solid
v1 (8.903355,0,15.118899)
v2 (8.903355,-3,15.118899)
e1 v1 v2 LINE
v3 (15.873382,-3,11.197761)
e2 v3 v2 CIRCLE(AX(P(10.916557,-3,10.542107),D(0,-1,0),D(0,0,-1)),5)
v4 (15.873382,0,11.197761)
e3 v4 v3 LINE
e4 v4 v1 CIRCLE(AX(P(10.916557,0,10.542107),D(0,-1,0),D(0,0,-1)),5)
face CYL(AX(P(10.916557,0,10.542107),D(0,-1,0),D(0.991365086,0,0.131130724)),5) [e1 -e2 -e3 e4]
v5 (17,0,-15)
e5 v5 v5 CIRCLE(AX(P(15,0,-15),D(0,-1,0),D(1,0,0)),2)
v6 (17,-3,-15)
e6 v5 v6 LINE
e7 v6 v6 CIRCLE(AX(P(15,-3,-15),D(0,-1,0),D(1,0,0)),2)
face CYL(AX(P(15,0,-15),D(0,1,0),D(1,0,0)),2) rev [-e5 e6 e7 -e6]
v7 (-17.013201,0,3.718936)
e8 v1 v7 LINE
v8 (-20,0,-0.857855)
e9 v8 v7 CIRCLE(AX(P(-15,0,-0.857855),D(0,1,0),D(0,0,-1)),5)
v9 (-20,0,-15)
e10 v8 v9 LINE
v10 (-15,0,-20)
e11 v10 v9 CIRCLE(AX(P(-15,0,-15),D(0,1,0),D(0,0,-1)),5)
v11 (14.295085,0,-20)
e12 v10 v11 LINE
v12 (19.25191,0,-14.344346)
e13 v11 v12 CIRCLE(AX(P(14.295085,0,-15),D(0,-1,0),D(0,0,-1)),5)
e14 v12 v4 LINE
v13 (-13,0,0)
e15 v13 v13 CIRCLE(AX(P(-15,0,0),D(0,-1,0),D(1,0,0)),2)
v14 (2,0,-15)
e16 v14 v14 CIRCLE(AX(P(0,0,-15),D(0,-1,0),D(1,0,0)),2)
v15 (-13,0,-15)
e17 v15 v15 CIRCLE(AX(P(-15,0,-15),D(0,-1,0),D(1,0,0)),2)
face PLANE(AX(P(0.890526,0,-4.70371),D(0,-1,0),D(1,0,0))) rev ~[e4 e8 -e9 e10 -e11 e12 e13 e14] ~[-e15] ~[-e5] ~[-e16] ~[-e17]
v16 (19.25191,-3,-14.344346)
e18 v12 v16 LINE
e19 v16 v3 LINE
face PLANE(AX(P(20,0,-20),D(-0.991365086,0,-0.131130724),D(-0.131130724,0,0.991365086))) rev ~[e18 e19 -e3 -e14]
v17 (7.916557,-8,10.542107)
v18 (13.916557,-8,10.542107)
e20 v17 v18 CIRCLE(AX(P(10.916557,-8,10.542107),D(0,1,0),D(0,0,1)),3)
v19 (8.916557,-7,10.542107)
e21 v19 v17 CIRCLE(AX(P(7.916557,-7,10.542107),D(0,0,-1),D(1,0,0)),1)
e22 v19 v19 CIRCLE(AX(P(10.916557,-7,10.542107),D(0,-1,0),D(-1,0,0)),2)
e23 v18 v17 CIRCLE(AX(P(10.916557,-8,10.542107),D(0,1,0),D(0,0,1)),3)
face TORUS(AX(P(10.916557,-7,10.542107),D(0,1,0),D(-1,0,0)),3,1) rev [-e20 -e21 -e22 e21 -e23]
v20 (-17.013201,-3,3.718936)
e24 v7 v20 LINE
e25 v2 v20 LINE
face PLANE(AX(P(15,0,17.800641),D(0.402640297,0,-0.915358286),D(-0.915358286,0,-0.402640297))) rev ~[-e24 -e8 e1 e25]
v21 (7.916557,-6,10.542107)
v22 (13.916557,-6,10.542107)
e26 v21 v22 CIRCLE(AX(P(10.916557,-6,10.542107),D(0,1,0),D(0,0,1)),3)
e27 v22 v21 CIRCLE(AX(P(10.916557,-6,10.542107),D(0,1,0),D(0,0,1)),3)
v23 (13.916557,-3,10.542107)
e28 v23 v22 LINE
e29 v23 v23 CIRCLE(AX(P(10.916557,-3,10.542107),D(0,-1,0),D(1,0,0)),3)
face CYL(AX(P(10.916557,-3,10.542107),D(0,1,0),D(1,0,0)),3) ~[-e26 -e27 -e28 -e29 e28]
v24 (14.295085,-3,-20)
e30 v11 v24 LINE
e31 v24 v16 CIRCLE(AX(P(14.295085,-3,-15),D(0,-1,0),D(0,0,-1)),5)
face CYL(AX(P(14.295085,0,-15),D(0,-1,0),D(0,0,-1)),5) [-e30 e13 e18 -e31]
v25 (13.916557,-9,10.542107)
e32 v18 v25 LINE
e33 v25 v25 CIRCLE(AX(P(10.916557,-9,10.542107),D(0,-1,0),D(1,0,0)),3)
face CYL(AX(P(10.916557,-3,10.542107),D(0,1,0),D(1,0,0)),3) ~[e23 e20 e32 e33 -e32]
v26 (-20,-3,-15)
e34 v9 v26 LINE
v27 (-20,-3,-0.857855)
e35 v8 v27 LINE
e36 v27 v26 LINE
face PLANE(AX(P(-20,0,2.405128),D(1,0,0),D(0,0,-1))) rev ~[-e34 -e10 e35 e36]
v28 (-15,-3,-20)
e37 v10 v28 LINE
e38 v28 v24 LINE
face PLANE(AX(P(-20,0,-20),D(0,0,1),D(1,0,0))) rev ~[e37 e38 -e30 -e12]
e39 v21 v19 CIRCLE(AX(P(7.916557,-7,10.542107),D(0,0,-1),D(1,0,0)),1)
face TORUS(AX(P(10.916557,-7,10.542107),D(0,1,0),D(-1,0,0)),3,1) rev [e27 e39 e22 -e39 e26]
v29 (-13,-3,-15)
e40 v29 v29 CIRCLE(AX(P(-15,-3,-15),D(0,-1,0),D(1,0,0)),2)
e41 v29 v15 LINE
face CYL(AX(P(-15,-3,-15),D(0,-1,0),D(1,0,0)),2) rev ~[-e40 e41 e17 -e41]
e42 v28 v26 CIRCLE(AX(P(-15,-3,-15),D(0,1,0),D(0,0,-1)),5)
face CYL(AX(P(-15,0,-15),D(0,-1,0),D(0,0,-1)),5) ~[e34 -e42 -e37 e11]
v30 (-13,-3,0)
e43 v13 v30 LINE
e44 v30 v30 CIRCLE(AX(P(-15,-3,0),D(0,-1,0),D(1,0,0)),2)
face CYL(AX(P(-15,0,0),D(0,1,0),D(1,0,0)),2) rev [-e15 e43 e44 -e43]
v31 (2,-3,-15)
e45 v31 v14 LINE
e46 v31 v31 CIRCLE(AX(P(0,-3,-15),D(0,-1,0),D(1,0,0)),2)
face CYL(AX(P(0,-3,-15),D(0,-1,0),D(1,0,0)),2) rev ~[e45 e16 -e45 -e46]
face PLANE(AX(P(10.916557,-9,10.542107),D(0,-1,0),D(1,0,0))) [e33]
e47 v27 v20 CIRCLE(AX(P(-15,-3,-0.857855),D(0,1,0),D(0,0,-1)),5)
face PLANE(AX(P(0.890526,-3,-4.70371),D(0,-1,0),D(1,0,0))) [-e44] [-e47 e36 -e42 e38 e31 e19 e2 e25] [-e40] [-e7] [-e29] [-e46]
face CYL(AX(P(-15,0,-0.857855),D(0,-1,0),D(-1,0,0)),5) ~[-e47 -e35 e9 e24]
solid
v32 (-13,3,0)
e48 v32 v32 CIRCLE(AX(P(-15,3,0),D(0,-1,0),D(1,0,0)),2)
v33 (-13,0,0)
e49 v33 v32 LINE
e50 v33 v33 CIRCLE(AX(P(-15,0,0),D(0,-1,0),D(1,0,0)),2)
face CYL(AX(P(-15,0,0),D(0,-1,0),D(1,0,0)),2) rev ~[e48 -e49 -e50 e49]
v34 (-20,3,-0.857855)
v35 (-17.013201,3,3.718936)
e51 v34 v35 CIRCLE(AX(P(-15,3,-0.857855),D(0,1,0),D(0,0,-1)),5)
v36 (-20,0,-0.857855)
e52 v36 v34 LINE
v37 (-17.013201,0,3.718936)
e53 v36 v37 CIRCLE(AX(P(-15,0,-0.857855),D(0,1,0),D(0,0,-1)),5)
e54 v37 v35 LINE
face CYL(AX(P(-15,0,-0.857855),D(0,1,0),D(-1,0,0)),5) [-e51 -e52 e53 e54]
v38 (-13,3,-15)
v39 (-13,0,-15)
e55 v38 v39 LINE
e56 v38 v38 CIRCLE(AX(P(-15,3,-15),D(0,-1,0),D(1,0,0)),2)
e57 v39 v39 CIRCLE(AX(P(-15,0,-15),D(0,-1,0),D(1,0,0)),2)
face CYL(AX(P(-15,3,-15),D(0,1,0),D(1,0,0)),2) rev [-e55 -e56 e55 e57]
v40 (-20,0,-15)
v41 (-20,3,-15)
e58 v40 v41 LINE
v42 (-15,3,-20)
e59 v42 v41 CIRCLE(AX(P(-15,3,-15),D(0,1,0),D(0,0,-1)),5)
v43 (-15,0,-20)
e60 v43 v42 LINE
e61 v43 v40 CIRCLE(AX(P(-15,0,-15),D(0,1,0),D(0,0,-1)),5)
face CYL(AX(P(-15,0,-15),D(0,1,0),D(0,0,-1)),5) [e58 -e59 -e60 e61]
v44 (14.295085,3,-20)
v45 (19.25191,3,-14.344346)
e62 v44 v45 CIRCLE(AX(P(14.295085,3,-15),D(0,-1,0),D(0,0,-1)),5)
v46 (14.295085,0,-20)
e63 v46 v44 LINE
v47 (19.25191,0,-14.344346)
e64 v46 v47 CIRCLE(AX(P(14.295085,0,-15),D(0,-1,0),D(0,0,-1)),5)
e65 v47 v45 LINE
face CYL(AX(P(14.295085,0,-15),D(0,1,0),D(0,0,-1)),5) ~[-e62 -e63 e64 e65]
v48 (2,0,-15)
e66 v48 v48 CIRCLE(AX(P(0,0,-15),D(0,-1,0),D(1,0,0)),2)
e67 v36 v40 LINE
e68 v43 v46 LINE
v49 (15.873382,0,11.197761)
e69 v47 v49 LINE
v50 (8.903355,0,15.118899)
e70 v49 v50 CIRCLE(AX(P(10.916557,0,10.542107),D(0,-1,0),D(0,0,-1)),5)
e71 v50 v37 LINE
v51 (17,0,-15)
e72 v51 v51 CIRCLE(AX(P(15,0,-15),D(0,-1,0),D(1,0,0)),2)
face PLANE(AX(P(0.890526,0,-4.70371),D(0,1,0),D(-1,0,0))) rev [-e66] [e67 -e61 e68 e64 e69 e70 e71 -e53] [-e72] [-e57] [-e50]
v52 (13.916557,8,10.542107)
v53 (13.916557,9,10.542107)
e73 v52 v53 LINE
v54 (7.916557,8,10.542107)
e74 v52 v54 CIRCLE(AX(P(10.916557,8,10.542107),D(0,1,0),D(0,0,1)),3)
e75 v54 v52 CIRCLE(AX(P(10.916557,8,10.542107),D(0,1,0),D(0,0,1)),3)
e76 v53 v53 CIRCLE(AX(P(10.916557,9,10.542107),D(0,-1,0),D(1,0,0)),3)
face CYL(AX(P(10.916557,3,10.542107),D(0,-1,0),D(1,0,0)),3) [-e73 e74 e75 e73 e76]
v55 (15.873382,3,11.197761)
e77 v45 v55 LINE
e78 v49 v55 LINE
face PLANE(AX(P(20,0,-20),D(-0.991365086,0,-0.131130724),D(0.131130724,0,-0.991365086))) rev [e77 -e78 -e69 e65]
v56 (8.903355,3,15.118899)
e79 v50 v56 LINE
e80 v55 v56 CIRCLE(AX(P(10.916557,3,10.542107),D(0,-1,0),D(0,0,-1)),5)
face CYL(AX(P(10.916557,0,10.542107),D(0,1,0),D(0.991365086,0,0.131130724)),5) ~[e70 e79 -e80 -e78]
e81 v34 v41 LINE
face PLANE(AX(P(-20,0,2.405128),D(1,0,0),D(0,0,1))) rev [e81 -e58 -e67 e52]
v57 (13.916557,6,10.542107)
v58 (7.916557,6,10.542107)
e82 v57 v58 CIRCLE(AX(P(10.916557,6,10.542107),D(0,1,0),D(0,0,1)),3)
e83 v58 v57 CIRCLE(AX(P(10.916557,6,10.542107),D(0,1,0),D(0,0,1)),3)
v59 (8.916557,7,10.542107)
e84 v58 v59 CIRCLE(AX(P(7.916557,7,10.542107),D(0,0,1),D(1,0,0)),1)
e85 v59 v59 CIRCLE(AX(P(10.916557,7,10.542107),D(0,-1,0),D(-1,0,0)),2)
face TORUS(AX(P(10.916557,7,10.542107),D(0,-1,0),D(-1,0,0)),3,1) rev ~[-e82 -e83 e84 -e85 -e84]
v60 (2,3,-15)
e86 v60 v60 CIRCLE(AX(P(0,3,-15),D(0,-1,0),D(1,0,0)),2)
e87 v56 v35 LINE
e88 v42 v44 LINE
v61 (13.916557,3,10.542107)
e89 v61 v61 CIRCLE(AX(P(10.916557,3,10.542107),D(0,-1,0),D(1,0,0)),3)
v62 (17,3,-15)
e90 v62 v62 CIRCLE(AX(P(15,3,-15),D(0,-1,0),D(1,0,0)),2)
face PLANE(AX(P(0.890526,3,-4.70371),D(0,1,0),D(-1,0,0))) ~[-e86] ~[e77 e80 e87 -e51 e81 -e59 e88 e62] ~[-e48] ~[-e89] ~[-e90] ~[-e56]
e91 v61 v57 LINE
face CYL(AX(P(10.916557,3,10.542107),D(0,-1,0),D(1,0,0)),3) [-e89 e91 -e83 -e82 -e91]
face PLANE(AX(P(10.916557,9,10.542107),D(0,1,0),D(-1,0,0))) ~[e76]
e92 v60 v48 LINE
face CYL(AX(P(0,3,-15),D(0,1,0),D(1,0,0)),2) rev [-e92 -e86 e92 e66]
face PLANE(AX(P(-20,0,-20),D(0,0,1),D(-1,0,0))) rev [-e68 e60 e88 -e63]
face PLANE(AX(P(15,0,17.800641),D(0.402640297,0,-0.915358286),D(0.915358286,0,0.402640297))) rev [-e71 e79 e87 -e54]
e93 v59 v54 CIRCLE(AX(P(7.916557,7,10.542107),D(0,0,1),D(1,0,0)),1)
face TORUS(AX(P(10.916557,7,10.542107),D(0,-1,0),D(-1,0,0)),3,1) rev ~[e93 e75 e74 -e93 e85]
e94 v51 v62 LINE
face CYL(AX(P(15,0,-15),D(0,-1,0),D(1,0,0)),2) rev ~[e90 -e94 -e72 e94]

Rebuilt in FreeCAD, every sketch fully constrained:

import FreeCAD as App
import Part
import Sketcher

V = App.Vector


def edges_at(feature, points):
    """Names of the edges that pass closest to the given points."""
    edges = feature.Shape.Edges
    near = lambda p: min(range(len(edges)), key=lambda i: edges[i].distToShape(Part.Vertex(*p))[0])
    return sorted({f"Edge{near(p) + 1}" for p in points})


def add_polygon(sketch, points):
    """Adds a closed chain of lines whose ends are joined by coincident constraints."""
    first, n = sketch.GeometryCount, len(points)
    for a, b in zip(points, points[1:] + points[:1]):
        sketch.addGeometry(Part.LineSegment(App.Vector(*a, 0), App.Vector(*b, 0)), False)
    for i in range(n):
        sketch.addConstraint(Sketcher.Constraint("Coincident", first + i, 2, first + (i + 1) % n, 1))

doc = App.newDocument("Part")
params = doc.addObject("Spreadsheet::Sheet", "Params")
for row, (alias, value) in enumerate([
    ("sketch1_diameter", "4 mm"),
    ("sketch1_width", "40 mm"),
    ("pad1_length", "3 mm"),
    ("fillet_radius", "5 mm"),
    ("sketch2_diameter", "6 mm"),
    ("pad2_length", "6 mm"),
    ("sketch3_diameter", "2 mm"),
    ("sketch3_height", "10 mm"),
    ("groove_angle", "360 deg"),
    ("fillet2_radius", "5 mm"),
    ("sketch4_diameter", "4 mm"),
    ("pocket1_length", "25 mm"),
], start=1):
    params.set(f"A{row}", alias)
    params.set(f"B{row}", "=" + value)
    params.setAlias(f"B{row}", alias)

body = doc.addObject("PartDesign::Body", "Body")

# Sketch on XZ plane
sketch1 = body.newObject("Sketcher::SketchObject", "Sketch")
sketch1.AttachmentSupport = (doc.getObject("XZ_Plane"), [""])
sketch1.MapMode = "FlatFace"
add_polygon(sketch1, [(-20, -20), (20, -20), (15, 17.800641), (-20, 2.405128)])  # lines 0-3
sketch1.addGeometry(Part.Circle(V(15, -15, 0), V(0, 0, 1), 2), False)  # 4
sketch1.addGeometry(Part.Circle(V(-15, 0, 0), V(0, 0, 1), 2), False)  # 5
sketch1.addConstraint(Sketcher.Constraint("Horizontal", 0))
sketch1.addConstraint(Sketcher.Constraint("Vertical", 3))
sketch1.addConstraint(Sketcher.Constraint("Equal", 4, 5))
sketch1.addConstraint(Sketcher.Constraint("PointOnObject", 5, 3, -1))
sketch1.addConstraint(Sketcher.Constraint("Vertical", 4, 3, 1, 2))
sketch1.addConstraint(Sketcher.Constraint("Diameter", 4, 4.0))
sketch1.addConstraint(Sketcher.Constraint("DistanceX", 0, 1, 0, 2, 40.0))
sketch1.addConstraint(Sketcher.Constraint("DistanceX", -1, 1, 4, 3, 15.0))
sketch1.addConstraint(Sketcher.Constraint("DistanceY", 4, 3, -1, 1, 15.0))
sketch1.addConstraint(Sketcher.Constraint("DistanceX", 5, 3, -1, 1, 15.0))
sketch1.addConstraint(Sketcher.Constraint("DistanceX", -1, 1, 0, 2, 20.0))
sketch1.addConstraint(Sketcher.Constraint("DistanceY", 0, 2, -1, 1, 20.0))
sketch1.addConstraint(Sketcher.Constraint("DistanceY", 3, 2, 3, 1, 22.405128))
sketch1.addConstraint(Sketcher.Constraint("Distance", 1, 38.129889))
sketch1.setExpression("Constraints[9]", "Params.sketch1_diameter")
sketch1.setExpression("Constraints[10]", "Params.sketch1_width")
pad1 = body.newObject("PartDesign::Pad", "Pad")
pad1.Profile = sketch1
pad1.setExpression("Length", "Params.pad1_length")
doc.recompute()

fillet = body.newObject("PartDesign::Fillet", "Fillet")
fillet.Base = (pad1, edges_at(pad1, [(15, -1.5, 17.801), (-20, -1.5, 2.405), (20, -1.5, -20)]))
fillet.setExpression("Radius", "Params.fillet_radius")

# Sketch on XZ plane
sketch2 = body.newObject("Sketcher::SketchObject", "Sketch001")
sketch2.AttachmentSupport = (doc.getObject("XZ_Plane"), [""])
sketch2.MapMode = "FlatFace"
sketch2.AttachmentOffset = App.Placement(V(0, 0, 3), App.Rotation())
sketch2.addGeometry(Part.Circle(V(10.916557, 10.542107, 0), V(0, 0, 1), 3), False)
sketch2.addConstraint(Sketcher.Constraint("Diameter", 0, 6.0))
sketch2.addConstraint(Sketcher.Constraint("DistanceX", -1, 1, 0, 3, 10.916557))
sketch2.addConstraint(Sketcher.Constraint("DistanceY", -1, 1, 0, 3, 10.542107))
sketch2.setExpression("Constraints[0]", "Params.sketch2_diameter")
pad2 = body.newObject("PartDesign::Pad", "Pad001")
pad2.Profile = sketch2
pad2.setExpression("Length", "Params.pad2_length")

# Sketch on XY plane
sketch3 = body.newObject("Sketcher::SketchObject", "Sketch002")
sketch3.AttachmentSupport = (doc.getObject("XY_Plane"), [""])
sketch3.MapMode = "FlatFace"
sketch3.AttachmentOffset = App.Placement(V(0, 0, 10.542107), App.Rotation())
sketch3.addGeometry(Part.Circle(V(7.916557, -7, 0), V(0, 0, 1), 1), False)
sketch3.addGeometry(Part.LineSegment(V(10.916557, -7, 0), V(10.916557, -17, 0)), True)  # axis
sketch3.addConstraint(Sketcher.Constraint("Vertical", 1))
sketch3.addConstraint(Sketcher.Constraint("Horizontal", 0, 3, 1, 1))
sketch3.addConstraint(Sketcher.Constraint("Diameter", 0, 2.0))
sketch3.addConstraint(Sketcher.Constraint("DistanceY", 1, 2, 1, 1, 10.0))
sketch3.addConstraint(Sketcher.Constraint("DistanceY", 0, 3, -1, 1, 7.0))
sketch3.addConstraint(Sketcher.Constraint("DistanceX", 0, 3, 1, 1, 3.0))
sketch3.addConstraint(Sketcher.Constraint("DistanceX", -1, 1, 0, 3, 7.916557))
sketch3.setExpression("Constraints[2]", "Params.sketch3_diameter")
sketch3.setExpression("Constraints[3]", "Params.sketch3_height")
groove = body.newObject("PartDesign::Groove", "Groove")
groove.Profile = sketch3
groove.ReferenceAxis = (sketch3, ["Axis0"])
groove.setExpression("Angle", "Params.groove_angle")
doc.recompute()

fillet2 = body.newObject("PartDesign::Fillet", "Fillet001")
fillet2.Base = (groove, edges_at(groove, [(-20, -1.5, -20)]))
fillet2.setExpression("Radius", "Params.fillet2_radius")

# Sketch on XZ plane
sketch4 = body.newObject("Sketcher::SketchObject", "Sketch003")
sketch4.AttachmentSupport = (doc.getObject("XZ_Plane"), [""])
sketch4.MapMode = "FlatFace"
sketch4.AttachmentOffset = App.Placement(V(0, 0, 3), App.Rotation())
sketch4.addGeometry(Part.Circle(V(-15, -15, 0), V(0, 0, 1), 2), False)
sketch4.addGeometry(Part.Circle(V(0, -15, 0), V(0, 0, 1), 2), False)
sketch4.addConstraint(Sketcher.Constraint("Equal", 0, 1))
sketch4.addConstraint(Sketcher.Constraint("PointOnObject", 1, 3, -2))
sketch4.addConstraint(Sketcher.Constraint("Horizontal", 0, 3, 1, 3))
sketch4.addConstraint(Sketcher.Constraint("Diameter", 0, 4.0))
sketch4.addConstraint(Sketcher.Constraint("DistanceX", 0, 3, -1, 1, 15.0))
sketch4.addConstraint(Sketcher.Constraint("DistanceY", 0, 3, -1, 1, 15.0))
sketch4.setExpression("Constraints[3]", "Params.sketch4_diameter")
pocket1 = body.newObject("PartDesign::Pocket", "Pocket")
pocket1.Profile = sketch4
pocket1.setExpression("Length", "Params.pocket1_length")
body2 = doc.addObject("PartDesign::Body", "Body001")
doc.recompute()

mirroring = doc.addObject("Part::Mirroring", "Mirroring")
mirroring.Source = body
mirroring.Base = V(0, 0, 0)
mirroring.Normal = V(0, -1, 0)
body2.BaseFeature = mirroring
doc.recompute()
mirroring.Visibility = False

doc.recompute()
